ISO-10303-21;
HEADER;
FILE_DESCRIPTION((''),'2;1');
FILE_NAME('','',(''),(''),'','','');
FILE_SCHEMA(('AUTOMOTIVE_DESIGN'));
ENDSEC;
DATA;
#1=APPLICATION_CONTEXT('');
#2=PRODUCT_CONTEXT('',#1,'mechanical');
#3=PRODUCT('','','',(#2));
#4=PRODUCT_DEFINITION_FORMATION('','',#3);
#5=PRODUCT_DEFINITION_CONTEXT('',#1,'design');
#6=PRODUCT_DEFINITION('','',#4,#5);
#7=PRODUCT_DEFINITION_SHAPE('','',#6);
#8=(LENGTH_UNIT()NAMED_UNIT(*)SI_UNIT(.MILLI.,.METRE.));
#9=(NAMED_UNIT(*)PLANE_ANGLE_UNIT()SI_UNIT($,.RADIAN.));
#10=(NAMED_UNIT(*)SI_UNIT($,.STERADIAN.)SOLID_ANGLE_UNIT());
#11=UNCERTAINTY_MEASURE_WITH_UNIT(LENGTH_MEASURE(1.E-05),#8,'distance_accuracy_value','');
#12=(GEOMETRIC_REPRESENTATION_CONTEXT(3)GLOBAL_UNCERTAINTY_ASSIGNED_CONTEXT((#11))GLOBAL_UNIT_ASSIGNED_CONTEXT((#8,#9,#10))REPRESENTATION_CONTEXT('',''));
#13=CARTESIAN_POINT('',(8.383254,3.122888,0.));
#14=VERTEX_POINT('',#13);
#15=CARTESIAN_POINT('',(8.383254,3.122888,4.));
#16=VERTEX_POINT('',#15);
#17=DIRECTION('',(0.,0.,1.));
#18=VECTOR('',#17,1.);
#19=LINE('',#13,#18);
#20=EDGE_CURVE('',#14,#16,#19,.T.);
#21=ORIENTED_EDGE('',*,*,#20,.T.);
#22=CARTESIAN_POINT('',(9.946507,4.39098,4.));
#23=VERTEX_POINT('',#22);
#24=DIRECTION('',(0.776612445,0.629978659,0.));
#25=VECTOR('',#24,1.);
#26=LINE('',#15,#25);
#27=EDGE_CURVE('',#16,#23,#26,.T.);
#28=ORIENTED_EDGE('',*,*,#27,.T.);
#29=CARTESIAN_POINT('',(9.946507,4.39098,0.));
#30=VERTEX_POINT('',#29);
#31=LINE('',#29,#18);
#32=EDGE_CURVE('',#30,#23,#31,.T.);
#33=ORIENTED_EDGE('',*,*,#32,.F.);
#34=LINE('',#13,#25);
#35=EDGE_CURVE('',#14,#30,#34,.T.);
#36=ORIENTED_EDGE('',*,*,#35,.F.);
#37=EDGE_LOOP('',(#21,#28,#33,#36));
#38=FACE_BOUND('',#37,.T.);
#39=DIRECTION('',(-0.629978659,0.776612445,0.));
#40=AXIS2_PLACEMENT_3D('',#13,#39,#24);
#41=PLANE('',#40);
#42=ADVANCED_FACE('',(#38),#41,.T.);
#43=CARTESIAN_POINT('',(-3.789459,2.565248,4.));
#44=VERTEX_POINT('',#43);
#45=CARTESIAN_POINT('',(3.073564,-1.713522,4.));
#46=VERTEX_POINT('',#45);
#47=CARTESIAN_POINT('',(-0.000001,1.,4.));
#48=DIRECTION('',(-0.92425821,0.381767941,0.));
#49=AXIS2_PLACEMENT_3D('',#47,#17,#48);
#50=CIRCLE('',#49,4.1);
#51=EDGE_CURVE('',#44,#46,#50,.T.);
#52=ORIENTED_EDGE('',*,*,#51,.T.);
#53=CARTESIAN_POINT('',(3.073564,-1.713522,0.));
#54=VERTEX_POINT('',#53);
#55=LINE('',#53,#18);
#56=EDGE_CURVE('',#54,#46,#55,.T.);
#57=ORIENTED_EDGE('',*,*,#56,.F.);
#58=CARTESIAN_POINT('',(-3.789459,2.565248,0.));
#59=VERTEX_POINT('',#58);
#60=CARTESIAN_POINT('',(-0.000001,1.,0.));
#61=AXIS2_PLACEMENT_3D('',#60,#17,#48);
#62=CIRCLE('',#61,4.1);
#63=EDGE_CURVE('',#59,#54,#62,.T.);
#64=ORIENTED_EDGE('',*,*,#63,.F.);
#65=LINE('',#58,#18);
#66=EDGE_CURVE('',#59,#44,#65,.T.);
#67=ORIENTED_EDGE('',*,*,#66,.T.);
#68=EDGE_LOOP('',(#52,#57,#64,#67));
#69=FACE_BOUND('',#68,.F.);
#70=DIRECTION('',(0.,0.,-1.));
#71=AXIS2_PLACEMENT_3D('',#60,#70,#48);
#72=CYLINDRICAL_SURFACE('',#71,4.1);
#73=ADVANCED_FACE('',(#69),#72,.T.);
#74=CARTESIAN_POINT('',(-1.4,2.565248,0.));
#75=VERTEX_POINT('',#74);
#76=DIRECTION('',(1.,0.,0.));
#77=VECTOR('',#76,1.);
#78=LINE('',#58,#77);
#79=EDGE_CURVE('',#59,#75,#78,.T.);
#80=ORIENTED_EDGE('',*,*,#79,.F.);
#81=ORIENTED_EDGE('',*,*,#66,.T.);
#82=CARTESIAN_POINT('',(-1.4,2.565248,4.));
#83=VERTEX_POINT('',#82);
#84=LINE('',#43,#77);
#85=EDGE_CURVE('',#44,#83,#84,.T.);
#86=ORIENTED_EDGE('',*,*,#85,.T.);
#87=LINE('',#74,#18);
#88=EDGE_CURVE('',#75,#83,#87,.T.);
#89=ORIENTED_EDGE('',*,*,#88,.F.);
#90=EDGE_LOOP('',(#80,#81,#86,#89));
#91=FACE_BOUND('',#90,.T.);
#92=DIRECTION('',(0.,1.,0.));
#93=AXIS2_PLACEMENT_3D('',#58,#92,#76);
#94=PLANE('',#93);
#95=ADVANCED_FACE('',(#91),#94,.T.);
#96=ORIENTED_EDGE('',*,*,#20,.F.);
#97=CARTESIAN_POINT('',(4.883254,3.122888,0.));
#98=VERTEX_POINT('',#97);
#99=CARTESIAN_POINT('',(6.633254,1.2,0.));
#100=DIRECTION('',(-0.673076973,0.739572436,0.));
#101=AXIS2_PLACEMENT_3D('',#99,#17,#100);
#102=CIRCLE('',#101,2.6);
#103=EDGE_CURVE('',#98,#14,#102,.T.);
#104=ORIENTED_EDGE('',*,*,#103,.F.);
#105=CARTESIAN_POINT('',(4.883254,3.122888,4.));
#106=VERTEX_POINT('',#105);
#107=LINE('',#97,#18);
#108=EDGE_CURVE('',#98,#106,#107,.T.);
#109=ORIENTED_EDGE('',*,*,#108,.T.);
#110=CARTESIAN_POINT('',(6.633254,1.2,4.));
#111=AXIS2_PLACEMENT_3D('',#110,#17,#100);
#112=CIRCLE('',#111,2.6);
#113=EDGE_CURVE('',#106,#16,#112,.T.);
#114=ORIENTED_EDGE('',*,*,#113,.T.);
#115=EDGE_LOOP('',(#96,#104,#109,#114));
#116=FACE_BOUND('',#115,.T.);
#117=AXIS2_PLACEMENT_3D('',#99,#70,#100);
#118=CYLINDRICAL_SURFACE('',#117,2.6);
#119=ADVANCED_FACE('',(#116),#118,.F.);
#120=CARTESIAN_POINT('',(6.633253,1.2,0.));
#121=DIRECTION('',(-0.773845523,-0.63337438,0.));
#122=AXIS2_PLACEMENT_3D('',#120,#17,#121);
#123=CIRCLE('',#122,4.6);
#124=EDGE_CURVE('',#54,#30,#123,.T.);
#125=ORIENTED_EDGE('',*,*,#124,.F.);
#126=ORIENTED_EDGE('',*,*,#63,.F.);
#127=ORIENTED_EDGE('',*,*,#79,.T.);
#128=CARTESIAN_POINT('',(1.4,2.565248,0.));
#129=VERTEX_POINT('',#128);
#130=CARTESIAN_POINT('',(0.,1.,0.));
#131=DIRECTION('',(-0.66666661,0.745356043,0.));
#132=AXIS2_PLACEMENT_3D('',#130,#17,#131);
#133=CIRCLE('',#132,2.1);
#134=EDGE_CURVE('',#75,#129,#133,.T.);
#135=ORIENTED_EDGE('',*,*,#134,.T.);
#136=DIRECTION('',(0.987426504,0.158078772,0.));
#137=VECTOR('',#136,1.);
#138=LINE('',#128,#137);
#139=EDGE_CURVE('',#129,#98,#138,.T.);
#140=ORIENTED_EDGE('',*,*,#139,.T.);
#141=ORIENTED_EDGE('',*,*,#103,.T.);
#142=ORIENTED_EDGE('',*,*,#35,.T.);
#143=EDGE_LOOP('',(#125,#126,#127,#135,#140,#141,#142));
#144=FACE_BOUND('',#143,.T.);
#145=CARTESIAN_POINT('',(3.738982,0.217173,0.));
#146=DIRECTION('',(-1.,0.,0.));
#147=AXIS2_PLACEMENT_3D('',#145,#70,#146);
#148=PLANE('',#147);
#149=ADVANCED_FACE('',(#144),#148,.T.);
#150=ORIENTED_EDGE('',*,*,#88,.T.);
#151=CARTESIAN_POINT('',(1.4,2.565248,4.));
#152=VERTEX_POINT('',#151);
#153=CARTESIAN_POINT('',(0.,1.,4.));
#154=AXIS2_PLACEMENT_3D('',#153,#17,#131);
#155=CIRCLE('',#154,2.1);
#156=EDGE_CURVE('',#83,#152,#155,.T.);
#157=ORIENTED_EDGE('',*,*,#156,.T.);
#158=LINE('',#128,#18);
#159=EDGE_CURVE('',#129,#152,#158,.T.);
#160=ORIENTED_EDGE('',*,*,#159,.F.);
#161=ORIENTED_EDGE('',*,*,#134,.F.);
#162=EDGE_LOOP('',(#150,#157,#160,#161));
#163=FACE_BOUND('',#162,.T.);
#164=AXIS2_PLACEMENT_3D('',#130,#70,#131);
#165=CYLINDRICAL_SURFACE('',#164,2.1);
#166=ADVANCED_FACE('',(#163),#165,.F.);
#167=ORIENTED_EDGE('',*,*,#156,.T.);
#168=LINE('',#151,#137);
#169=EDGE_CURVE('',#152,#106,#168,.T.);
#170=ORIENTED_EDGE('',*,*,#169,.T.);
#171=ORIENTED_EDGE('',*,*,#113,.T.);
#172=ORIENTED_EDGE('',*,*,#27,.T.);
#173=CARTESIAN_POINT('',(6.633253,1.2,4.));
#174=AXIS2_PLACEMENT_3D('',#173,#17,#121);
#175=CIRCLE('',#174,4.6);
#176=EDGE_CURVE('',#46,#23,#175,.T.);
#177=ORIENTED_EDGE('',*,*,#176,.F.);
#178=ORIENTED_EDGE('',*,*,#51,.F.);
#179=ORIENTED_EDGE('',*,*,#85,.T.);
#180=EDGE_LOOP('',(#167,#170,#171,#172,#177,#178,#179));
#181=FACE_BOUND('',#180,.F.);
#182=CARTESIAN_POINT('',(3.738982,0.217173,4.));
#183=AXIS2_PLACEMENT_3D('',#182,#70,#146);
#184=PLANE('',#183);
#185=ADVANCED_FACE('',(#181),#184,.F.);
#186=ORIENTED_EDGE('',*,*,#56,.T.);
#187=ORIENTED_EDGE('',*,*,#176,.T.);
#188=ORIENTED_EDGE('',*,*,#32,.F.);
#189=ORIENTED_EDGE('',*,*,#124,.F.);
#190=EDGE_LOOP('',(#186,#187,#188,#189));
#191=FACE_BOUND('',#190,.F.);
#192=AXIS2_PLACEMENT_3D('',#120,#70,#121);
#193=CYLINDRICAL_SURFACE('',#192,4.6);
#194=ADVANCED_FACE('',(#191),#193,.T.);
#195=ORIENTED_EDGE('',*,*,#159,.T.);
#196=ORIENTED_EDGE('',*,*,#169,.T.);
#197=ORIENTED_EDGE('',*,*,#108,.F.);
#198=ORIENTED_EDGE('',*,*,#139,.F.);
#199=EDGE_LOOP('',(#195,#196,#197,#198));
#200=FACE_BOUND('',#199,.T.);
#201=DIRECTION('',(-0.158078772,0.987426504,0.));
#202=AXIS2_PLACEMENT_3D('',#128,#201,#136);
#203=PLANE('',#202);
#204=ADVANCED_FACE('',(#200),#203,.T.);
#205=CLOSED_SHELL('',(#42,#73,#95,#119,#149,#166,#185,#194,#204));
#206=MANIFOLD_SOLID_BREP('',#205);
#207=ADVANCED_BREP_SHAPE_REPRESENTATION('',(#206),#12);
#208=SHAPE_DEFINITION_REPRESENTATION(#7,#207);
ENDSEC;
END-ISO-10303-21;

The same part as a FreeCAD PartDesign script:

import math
import FreeCAD as App
import Part
import Sketcher
Q = App.Units.Quantity

doc = App.newDocument("Part")
body = doc.addObject("PartDesign::Body", "Body")

# Sketch on XY plane
sketch1 = body.newObject("Sketcher::SketchObject", "Sketch")
sketch1.AttachmentSupport = (doc.getObject("XY_Plane"), [""])
sketch1.MapMode = "FlatFace"
sketch1.addGeometry([
    Part.ArcOfCircle(Part.Circle(App.Vector(0, 1, 0), App.Vector(0, 0, 1), 2.1), math.radians(132), math.radians(408)),  # 0
    Part.LineSegment(App.Vector(-1.4, 2.6, 0), App.Vector(-3.8, 2.6, 0)),  # 1
    Part.ArcOfCircle(Part.Circle(App.Vector(0, 1, 0), App.Vector(0, 0, 1), 4.1), math.radians(158), math.radians(319)),  # 2
    Part.ArcOfCircle(Part.Circle(App.Vector(6.6, 1.2, 0), App.Vector(0, 0, 1), 4.6), math.radians(-141), math.radians(44)),  # 3
    Part.LineSegment(App.Vector(9.9, 4.4, 0), App.Vector(8.4, 3.1, 0)),  # 4
    Part.ArcOfCircle(Part.Circle(App.Vector(6.6, 1.2, 0), App.Vector(0, 0, 1), 2.6), math.radians(132), math.radians(408)),  # 5
    Part.LineSegment(App.Vector(4.9, 3.1, 0), App.Vector(1.4, 2.6, 0)),  # 6
], False)
sketch1.addConstraint([
    Sketcher.Constraint("Coincident", 0, 1, 1, 1),
    Sketcher.Constraint("Coincident", 1, 2, 2, 1),
    Sketcher.Constraint("Coincident", 2, 2, 3, 1),
    Sketcher.Constraint("Coincident", 3, 2, 4, 1),
    Sketcher.Constraint("Coincident", 4, 2, 5, 2),
    Sketcher.Constraint("Coincident", 5, 1, 6, 1),
    Sketcher.Constraint("Coincident", 6, 2, 0, 2),
    Sketcher.Constraint("Horizontal", 1),
    Sketcher.Constraint("Coincident", 2, 3, 0, 3),
    Sketcher.Constraint("Coincident", 5, 3, 3, 3),
    Sketcher.Constraint("Symmetric", 0, 1, 6, 2, -2),
    Sketcher.Constraint("Horizontal", 4, 2, 5, 1),
    Sketcher.Constraint("Radius", 0, Q("2.1 mm")),
    Sketcher.Constraint("Radius", 2, Q("4.1 mm")),
    Sketcher.Constraint("Radius", 3, Q("4.6 mm")),
    Sketcher.Constraint("Radius", 5, Q("2.6 mm")),
    Sketcher.Constraint("DistanceY", -1, 1, 0, 3, Q("1 mm")),
    Sketcher.Constraint("DistanceY", -1, 1, 3, 3, Q("1.2 mm")),
    Sketcher.Constraint("DistanceX", 0, 1, -1, 1, Q("1.4 mm")),
    Sketcher.Constraint("DistanceX", 5, 1, 4, 2, Q("3.5 mm")),
    Sketcher.Constraint("DistanceY", 2, 2, 3, 2, Q("6.104502 mm")),
    Sketcher.Constraint("Distance", 6, Q("3.527608 mm")),
])
pad1 = body.newObject("PartDesign::Pad", "Pad")
pad1.Profile = sketch1
pad1.Length = 4

doc.recompute()
